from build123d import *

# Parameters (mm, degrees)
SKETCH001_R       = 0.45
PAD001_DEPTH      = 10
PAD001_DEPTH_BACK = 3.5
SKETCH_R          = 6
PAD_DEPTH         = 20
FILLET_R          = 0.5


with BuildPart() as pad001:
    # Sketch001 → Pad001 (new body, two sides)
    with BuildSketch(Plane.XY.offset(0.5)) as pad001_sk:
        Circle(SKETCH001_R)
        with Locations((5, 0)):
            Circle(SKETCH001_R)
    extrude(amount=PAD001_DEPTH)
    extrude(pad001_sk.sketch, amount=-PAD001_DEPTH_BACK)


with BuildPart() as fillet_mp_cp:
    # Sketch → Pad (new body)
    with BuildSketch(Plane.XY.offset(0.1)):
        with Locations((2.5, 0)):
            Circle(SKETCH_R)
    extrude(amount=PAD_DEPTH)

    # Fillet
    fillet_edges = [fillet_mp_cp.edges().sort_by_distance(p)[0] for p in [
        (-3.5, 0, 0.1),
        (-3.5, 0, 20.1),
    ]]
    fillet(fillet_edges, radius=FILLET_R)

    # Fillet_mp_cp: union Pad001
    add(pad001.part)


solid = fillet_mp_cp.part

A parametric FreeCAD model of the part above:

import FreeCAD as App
import Part
import Sketcher

V = App.Vector
Q = App.Units.Quantity


def edges_at(feature, points):
    """Names of the edges that pass closest to the given points."""
    edges = feature.Shape.Edges
    near = lambda p: min(range(len(edges)), key=lambda i: edges[i].distToShape(Part.Vertex(*p))[0])
    return sorted({f"Edge{near(p) + 1}" for p in points})

doc = App.newDocument("Part")
params = doc.addObject("Spreadsheet::Sheet", "Params")
for row, (alias, value) in enumerate([
    ("sketch1_diameter", "0.9 mm"),
    ("pad1_length", "10 mm"),
    ("pad1_length2", "3.5 mm"),
    ("sketch2_diameter", "12 mm"),
    ("pad2_length", "20 mm"),
    ("fillet_radius", "0.5 mm"),
], start=1):
    params.set(f"A{row}", alias)
    params.set(f"B{row}", "=" + value)
    params.setAlias(f"B{row}", alias)

body = doc.addObject("PartDesign::Body", "Body")
body.AllowCompound = True

# Sketch on XY plane
sketch1 = doc.addObject("Sketcher::SketchObject", "Sketch")
body.addObject(sketch1)
sketch1.AttachmentSupport = (doc.XY_Plane, [""])
sketch1.MapMode = "FlatFace"
sketch1.AttachmentOffset = App.Placement(V(0, 0, 0.5), App.Rotation())
sketch1.addGeometry(Part.Circle(V(0, 0, 0), V(0, 0, 1), 0.45), False)
sketch1.addGeometry(Part.Circle(V(5, 0, 0), V(0, 0, 1), 0.45), False)
sketch1.addConstraint(Sketcher.Constraint("Coincident", 0, 3, -1, 1))
sketch1.addConstraint(Sketcher.Constraint("Equal", 0, 1))
sketch1.addConstraint(Sketcher.Constraint("PointOnObject", 1, 3, -1))
sketch1.addConstraint(Sketcher.Constraint("Diameter", 0, Q("0.9 mm")))
sketch1.addConstraint(Sketcher.Constraint("DistanceX", -1, 1, 1, 3, Q("5 mm")))
sketch1.setExpression("Constraints[3]", "Params.sketch1_diameter")
pad1 = doc.addObject("PartDesign::Pad", "Pad")
body.addObject(pad1)
pad1.Profile = sketch1
pad1.Type = "TwoLengths"
pad1.setExpression("Length", "Params.pad1_length")
pad1.setExpression("Length2", "Params.pad1_length2")
body2 = doc.addObject("PartDesign::Body", "Body001")

# Sketch on XY plane
sketch2 = doc.addObject("Sketcher::SketchObject", "Sketch001")
body2.addObject(sketch2)
sketch2.AttachmentSupport = (doc.getObject("XY_Plane001"), [""])
sketch2.MapMode = "FlatFace"
sketch2.AttachmentOffset = App.Placement(V(0, 0, 0.1), App.Rotation())
sketch2.addGeometry(Part.Circle(V(2, 0, 0), V(0, 0, 1), 6), False)
sketch2.addConstraint(Sketcher.Constraint("PointOnObject", 0, 3, -1))
sketch2.addConstraint(Sketcher.Constraint("Diameter", 0, Q("12 mm")))
sketch2.addConstraint(Sketcher.Constraint("DistanceX", -1, 1, 0, 3, Q("2.5 mm")))
sketch2.setExpression("Constraints[1]", "Params.sketch2_diameter")
pad2 = doc.addObject("PartDesign::Pad", "Pad001")
body2.addObject(pad2)
pad2.Profile = sketch2
pad2.setExpression("Length", "Params.pad2_length")
doc.recompute()

fillet = doc.addObject("PartDesign::Fillet", "Fillet")
body2.addObject(fillet)
fillet.Base = (pad2, edges_at(pad2, [(-3.5, 0, 0.1), (-3.5, 0, 20.1)]))
fillet.setExpression("Radius", "Params.fillet_radius")
doc.recompute()

boolean = doc.addObject("PartDesign::Boolean", "Boolean")
body2.addObject(boolean)
boolean.Type = "Fuse"
boolean.addObjects([body])

doc.recompute()
